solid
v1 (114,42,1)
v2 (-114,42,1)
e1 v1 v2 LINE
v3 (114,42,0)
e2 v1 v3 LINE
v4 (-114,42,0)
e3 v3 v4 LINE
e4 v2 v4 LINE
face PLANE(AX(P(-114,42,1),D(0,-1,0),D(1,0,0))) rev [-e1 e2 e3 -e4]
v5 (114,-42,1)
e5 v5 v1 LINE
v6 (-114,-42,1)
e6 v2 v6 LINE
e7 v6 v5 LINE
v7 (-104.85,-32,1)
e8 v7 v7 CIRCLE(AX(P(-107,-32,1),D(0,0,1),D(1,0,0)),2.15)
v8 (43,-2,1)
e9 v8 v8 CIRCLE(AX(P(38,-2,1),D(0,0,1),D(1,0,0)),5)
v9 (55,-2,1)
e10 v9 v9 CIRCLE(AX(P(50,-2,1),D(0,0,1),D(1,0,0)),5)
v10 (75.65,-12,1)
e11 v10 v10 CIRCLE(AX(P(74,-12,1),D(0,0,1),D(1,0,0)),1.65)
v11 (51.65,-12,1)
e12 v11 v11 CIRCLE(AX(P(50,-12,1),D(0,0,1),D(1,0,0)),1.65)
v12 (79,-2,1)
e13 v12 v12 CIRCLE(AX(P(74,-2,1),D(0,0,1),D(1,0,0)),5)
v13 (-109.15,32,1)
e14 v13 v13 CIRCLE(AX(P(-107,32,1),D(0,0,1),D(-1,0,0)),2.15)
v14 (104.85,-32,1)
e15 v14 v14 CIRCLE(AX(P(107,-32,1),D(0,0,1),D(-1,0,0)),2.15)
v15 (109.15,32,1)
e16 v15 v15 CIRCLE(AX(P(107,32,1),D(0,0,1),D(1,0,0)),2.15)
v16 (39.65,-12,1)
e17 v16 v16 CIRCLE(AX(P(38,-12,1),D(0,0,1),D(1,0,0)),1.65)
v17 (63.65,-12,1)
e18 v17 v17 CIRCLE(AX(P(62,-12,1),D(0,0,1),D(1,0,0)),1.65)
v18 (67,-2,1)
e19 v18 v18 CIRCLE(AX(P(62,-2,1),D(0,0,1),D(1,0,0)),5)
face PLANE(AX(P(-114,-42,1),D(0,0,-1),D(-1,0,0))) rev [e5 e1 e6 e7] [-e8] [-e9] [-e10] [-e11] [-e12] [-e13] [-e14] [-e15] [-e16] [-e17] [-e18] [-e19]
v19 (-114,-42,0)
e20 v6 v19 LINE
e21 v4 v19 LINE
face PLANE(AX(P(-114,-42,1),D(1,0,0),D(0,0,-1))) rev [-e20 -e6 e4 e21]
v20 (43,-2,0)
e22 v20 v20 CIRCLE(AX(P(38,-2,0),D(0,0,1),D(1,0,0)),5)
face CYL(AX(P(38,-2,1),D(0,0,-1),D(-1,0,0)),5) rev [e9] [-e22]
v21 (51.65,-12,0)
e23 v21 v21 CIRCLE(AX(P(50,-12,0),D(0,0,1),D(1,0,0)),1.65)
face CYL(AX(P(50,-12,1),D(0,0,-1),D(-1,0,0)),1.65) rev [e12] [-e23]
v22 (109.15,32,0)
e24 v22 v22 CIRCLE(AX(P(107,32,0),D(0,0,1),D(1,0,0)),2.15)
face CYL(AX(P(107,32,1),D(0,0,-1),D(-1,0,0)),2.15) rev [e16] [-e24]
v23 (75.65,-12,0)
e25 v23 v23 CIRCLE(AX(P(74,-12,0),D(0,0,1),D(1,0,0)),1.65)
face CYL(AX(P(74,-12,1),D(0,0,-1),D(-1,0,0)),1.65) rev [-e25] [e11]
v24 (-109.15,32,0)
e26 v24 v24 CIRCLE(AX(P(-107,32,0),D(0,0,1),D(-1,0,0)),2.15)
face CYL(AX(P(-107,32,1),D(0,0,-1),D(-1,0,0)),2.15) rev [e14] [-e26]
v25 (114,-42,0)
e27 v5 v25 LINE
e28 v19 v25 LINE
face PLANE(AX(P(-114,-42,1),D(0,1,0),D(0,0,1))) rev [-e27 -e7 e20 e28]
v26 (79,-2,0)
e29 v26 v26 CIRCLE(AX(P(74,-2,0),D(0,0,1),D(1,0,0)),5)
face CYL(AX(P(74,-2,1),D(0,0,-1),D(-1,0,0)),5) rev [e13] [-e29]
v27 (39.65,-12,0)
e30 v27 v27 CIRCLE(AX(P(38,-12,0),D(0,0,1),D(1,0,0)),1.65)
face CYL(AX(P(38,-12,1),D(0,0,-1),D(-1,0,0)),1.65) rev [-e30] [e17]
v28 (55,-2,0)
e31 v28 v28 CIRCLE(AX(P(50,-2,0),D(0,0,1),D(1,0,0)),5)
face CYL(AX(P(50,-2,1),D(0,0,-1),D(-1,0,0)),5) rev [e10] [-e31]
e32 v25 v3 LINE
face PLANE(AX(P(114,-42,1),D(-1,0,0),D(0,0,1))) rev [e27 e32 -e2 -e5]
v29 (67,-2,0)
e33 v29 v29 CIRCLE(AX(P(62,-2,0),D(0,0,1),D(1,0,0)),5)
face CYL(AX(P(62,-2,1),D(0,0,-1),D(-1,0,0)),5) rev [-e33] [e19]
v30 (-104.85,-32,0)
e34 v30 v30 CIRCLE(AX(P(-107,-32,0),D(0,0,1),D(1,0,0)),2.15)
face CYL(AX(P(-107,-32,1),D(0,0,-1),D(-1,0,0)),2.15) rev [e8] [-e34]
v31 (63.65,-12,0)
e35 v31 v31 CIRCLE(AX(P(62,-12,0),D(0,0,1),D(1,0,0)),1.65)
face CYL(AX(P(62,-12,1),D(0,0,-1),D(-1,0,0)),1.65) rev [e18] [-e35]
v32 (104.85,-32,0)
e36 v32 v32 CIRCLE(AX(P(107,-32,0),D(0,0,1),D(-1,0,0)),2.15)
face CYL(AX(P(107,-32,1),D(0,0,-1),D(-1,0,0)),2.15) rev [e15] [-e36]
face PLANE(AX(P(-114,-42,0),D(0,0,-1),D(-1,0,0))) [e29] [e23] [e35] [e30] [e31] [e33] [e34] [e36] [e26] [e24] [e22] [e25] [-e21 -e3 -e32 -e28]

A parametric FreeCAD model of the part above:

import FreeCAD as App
import Part
import Sketcher
Q = App.Units.Quantity

doc = App.newDocument("Part")
params = doc.addObject("Spreadsheet::Sheet", "Params")
for row, (alias, value) in enumerate([
    ("sketch1_diameter", "10 mm"),
    ("sketch1_diameter2", "4.3 mm"),
    ("sketch1_diameter3", "3.3 mm"),
    ("sketch1_width", "228 mm"),
    ("sketch1_height", "84 mm"),
    ("pad1_length", "1 mm"),
], start=1):
    params.set(f"A{row}", alias)
    params.set(f"B{row}", "=" + value)
    params.setAlias(f"B{row}", alias)

body = doc.addObject("PartDesign::Body", "Body")

sketch1 = body.newObject("Sketcher::SketchObject", "Sketch")
sketch1.AttachmentSupport = (doc.getObject("XY_Plane"), [""])
sketch1.MapMode = "FlatFace"
sketch1.addGeometry(Part.LineSegment(App.Vector(-114, 42, 0), App.Vector(-114, -42, 0)), False)
sketch1.addGeometry(Part.LineSegment(App.Vector(-114, -42, 0), App.Vector(114, -42, 0)), False)
sketch1.addGeometry(Part.LineSegment(App.Vector(114, -42, 0), App.Vector(114, 42, 0)), False)
sketch1.addGeometry(Part.LineSegment(App.Vector(114, 42, 0), App.Vector(-114, 42, 0)), False)
sketch1.addGeometry(Part.Circle(App.Vector(-107, -32, 0), App.Vector(0, 0, 1), 2.1), False)
sketch1.addGeometry(Part.Circle(App.Vector(107, -32, 0), App.Vector(0, 0, 1), 2.1), False)
sketch1.addGeometry(Part.Circle(App.Vector(38, -12, 0), App.Vector(0, 0, 1), 1.6), False)
sketch1.addGeometry(Part.Circle(App.Vector(50, -12, 0), App.Vector(0, 0, 1), 1.6), False)
sketch1.addGeometry(Part.Circle(App.Vector(38, -2, 0), App.Vector(0, 0, 1), 5), False)
sketch1.addGeometry(Part.Circle(App.Vector(50, -2, 0), App.Vector(0, 0, 1), 5), False)
sketch1.addGeometry(Part.Circle(App.Vector(62, -12, 0), App.Vector(0, 0, 1), 1.6), False)
sketch1.addGeometry(Part.Circle(App.Vector(74, -12, 0), App.Vector(0, 0, 1), 1.6), False)
sketch1.addGeometry(Part.Circle(App.Vector(62, -2, 0), App.Vector(0, 0, 1), 5), False)
sketch1.addGeometry(Part.Circle(App.Vector(74, -2, 0), App.Vector(0, 0, 1), 5), False)
sketch1.addGeometry(Part.Circle(App.Vector(-107, 32, 0), App.Vector(0, 0, 1), 2.1), False)
sketch1.addGeometry(Part.Circle(App.Vector(107, 32, 0), App.Vector(0, 0, 1), 2.1), False)
sketch1.addConstraint(Sketcher.Constraint("Coincident", 0, 2, 1, 1))
sketch1.addConstraint(Sketcher.Constraint("Coincident", 1, 2, 2, 1))
sketch1.addConstraint(Sketcher.Constraint("Coincident", 2, 2, 3, 1))
sketch1.addConstraint(Sketcher.Constraint("Coincident", 3, 2, 0, 1))
sketch1.addConstraint(Sketcher.Constraint("Vertical", 0))
sketch1.addConstraint(Sketcher.Constraint("Horizontal", 1))
sketch1.addConstraint(Sketcher.Constraint("Vertical", 2))
sketch1.addConstraint(Sketcher.Constraint("Horizontal", 3))
sketch1.addConstraint(Sketcher.Constraint("Equal", 4, 5))
sketch1.addConstraint(Sketcher.Constraint("Equal", 6, 7))
sketch1.addConstraint(Sketcher.Constraint("Equal", 8, 9))
sketch1.addConstraint(Sketcher.Constraint("Equal", 7, 10))
sketch1.addConstraint(Sketcher.Constraint("Equal", 10, 11))
sketch1.addConstraint(Sketcher.Constraint("Equal", 9, 12))
sketch1.addConstraint(Sketcher.Constraint("Equal", 12, 13))
sketch1.addConstraint(Sketcher.Constraint("Equal", 5, 14))
sketch1.addConstraint(Sketcher.Constraint("Equal", 14, 15))
sketch1.addConstraint(Sketcher.Constraint("Symmetric", 5, 3, 14, 3, -1, 1))
sketch1.addConstraint(Sketcher.Constraint("Symmetric", 4, 3, 15, 3, -1, 1))
sketch1.addConstraint(Sketcher.Constraint("Symmetric", 0, 2, 2, 2, -1, 1))
sketch1.addConstraint(Sketcher.Constraint("Symmetric", 4, 3, 5, 3, -2))
sketch1.addConstraint(Sketcher.Constraint("Horizontal", 6, 3, 7, 3))
sketch1.addConstraint(Sketcher.Constraint("Horizontal", 8, 3, 9, 3))
sketch1.addConstraint(Sketcher.Constraint("Horizontal", 7, 3, 10, 3))
sketch1.addConstraint(Sketcher.Constraint("Horizontal", 10, 3, 11, 3))
sketch1.addConstraint(Sketcher.Constraint("Horizontal", 9, 3, 12, 3))
sketch1.addConstraint(Sketcher.Constraint("Horizontal", 12, 3, 13, 3))
sketch1.addConstraint(Sketcher.Constraint("Vertical", 6, 3, 8, 3))
sketch1.addConstraint(Sketcher.Constraint("Vertical", 7, 3, 9, 3))
sketch1.addConstraint(Sketcher.Constraint("Vertical", 10, 3, 12, 3))
sketch1.addConstraint(Sketcher.Constraint("Vertical", 11, 3, 13, 3))
sketch1.addConstraint(Sketcher.Constraint("Diameter", 8, Q("10 mm")))
sketch1.addConstraint(Sketcher.Constraint("Diameter", 4, Q("4.3 mm")))
sketch1.addConstraint(Sketcher.Constraint("Diameter", 6, Q("3.3 mm")))
sketch1.addConstraint(Sketcher.Constraint("DistanceX", 1, 1, 1, 2, Q("228 mm")))
sketch1.addConstraint(Sketcher.Constraint("DistanceY", 0, 2, 0, 1, Q("84 mm")))
sketch1.addConstraint(Sketcher.Constraint("DistanceX", 4, 3, -1, 1, Q("107 mm")))
sketch1.addConstraint(Sketcher.Constraint("DistanceY", 4, 3, -1, 1, Q("32 mm")))
sketch1.addConstraint(Sketcher.Constraint("DistanceX", -1, 1, 6, 3, Q("38 mm")))
sketch1.addConstraint(Sketcher.Constraint("DistanceY", 6, 3, -1, 1, Q("12 mm")))
sketch1.addConstraint(Sketcher.Constraint("DistanceX", -1, 1, 7, 3, Q("50 mm")))
sketch1.addConstraint(Sketcher.Constraint("DistanceY", 8, 3, -1, 1, Q("2 mm")))
sketch1.addConstraint(Sketcher.Constraint("DistanceX", -1, 1, 10, 3, Q("62 mm")))
sketch1.addConstraint(Sketcher.Constraint("DistanceX", -1, 1, 11, 3, Q("74 mm")))
sketch1.setExpression("Constraints[31]", "Params.sketch1_diameter")
sketch1.setExpression("Constraints[32]", "Params.sketch1_diameter2")
sketch1.setExpression("Constraints[33]", "Params.sketch1_diameter3")
sketch1.setExpression("Constraints[34]", "Params.sketch1_width")
sketch1.setExpression("Constraints[35]", "Params.sketch1_height")
pad1 = body.newObject("PartDesign::Pad", "Pad")
pad1.Profile = sketch1
pad1.setExpression("Length", "Params.pad1_length")

doc.recompute()
